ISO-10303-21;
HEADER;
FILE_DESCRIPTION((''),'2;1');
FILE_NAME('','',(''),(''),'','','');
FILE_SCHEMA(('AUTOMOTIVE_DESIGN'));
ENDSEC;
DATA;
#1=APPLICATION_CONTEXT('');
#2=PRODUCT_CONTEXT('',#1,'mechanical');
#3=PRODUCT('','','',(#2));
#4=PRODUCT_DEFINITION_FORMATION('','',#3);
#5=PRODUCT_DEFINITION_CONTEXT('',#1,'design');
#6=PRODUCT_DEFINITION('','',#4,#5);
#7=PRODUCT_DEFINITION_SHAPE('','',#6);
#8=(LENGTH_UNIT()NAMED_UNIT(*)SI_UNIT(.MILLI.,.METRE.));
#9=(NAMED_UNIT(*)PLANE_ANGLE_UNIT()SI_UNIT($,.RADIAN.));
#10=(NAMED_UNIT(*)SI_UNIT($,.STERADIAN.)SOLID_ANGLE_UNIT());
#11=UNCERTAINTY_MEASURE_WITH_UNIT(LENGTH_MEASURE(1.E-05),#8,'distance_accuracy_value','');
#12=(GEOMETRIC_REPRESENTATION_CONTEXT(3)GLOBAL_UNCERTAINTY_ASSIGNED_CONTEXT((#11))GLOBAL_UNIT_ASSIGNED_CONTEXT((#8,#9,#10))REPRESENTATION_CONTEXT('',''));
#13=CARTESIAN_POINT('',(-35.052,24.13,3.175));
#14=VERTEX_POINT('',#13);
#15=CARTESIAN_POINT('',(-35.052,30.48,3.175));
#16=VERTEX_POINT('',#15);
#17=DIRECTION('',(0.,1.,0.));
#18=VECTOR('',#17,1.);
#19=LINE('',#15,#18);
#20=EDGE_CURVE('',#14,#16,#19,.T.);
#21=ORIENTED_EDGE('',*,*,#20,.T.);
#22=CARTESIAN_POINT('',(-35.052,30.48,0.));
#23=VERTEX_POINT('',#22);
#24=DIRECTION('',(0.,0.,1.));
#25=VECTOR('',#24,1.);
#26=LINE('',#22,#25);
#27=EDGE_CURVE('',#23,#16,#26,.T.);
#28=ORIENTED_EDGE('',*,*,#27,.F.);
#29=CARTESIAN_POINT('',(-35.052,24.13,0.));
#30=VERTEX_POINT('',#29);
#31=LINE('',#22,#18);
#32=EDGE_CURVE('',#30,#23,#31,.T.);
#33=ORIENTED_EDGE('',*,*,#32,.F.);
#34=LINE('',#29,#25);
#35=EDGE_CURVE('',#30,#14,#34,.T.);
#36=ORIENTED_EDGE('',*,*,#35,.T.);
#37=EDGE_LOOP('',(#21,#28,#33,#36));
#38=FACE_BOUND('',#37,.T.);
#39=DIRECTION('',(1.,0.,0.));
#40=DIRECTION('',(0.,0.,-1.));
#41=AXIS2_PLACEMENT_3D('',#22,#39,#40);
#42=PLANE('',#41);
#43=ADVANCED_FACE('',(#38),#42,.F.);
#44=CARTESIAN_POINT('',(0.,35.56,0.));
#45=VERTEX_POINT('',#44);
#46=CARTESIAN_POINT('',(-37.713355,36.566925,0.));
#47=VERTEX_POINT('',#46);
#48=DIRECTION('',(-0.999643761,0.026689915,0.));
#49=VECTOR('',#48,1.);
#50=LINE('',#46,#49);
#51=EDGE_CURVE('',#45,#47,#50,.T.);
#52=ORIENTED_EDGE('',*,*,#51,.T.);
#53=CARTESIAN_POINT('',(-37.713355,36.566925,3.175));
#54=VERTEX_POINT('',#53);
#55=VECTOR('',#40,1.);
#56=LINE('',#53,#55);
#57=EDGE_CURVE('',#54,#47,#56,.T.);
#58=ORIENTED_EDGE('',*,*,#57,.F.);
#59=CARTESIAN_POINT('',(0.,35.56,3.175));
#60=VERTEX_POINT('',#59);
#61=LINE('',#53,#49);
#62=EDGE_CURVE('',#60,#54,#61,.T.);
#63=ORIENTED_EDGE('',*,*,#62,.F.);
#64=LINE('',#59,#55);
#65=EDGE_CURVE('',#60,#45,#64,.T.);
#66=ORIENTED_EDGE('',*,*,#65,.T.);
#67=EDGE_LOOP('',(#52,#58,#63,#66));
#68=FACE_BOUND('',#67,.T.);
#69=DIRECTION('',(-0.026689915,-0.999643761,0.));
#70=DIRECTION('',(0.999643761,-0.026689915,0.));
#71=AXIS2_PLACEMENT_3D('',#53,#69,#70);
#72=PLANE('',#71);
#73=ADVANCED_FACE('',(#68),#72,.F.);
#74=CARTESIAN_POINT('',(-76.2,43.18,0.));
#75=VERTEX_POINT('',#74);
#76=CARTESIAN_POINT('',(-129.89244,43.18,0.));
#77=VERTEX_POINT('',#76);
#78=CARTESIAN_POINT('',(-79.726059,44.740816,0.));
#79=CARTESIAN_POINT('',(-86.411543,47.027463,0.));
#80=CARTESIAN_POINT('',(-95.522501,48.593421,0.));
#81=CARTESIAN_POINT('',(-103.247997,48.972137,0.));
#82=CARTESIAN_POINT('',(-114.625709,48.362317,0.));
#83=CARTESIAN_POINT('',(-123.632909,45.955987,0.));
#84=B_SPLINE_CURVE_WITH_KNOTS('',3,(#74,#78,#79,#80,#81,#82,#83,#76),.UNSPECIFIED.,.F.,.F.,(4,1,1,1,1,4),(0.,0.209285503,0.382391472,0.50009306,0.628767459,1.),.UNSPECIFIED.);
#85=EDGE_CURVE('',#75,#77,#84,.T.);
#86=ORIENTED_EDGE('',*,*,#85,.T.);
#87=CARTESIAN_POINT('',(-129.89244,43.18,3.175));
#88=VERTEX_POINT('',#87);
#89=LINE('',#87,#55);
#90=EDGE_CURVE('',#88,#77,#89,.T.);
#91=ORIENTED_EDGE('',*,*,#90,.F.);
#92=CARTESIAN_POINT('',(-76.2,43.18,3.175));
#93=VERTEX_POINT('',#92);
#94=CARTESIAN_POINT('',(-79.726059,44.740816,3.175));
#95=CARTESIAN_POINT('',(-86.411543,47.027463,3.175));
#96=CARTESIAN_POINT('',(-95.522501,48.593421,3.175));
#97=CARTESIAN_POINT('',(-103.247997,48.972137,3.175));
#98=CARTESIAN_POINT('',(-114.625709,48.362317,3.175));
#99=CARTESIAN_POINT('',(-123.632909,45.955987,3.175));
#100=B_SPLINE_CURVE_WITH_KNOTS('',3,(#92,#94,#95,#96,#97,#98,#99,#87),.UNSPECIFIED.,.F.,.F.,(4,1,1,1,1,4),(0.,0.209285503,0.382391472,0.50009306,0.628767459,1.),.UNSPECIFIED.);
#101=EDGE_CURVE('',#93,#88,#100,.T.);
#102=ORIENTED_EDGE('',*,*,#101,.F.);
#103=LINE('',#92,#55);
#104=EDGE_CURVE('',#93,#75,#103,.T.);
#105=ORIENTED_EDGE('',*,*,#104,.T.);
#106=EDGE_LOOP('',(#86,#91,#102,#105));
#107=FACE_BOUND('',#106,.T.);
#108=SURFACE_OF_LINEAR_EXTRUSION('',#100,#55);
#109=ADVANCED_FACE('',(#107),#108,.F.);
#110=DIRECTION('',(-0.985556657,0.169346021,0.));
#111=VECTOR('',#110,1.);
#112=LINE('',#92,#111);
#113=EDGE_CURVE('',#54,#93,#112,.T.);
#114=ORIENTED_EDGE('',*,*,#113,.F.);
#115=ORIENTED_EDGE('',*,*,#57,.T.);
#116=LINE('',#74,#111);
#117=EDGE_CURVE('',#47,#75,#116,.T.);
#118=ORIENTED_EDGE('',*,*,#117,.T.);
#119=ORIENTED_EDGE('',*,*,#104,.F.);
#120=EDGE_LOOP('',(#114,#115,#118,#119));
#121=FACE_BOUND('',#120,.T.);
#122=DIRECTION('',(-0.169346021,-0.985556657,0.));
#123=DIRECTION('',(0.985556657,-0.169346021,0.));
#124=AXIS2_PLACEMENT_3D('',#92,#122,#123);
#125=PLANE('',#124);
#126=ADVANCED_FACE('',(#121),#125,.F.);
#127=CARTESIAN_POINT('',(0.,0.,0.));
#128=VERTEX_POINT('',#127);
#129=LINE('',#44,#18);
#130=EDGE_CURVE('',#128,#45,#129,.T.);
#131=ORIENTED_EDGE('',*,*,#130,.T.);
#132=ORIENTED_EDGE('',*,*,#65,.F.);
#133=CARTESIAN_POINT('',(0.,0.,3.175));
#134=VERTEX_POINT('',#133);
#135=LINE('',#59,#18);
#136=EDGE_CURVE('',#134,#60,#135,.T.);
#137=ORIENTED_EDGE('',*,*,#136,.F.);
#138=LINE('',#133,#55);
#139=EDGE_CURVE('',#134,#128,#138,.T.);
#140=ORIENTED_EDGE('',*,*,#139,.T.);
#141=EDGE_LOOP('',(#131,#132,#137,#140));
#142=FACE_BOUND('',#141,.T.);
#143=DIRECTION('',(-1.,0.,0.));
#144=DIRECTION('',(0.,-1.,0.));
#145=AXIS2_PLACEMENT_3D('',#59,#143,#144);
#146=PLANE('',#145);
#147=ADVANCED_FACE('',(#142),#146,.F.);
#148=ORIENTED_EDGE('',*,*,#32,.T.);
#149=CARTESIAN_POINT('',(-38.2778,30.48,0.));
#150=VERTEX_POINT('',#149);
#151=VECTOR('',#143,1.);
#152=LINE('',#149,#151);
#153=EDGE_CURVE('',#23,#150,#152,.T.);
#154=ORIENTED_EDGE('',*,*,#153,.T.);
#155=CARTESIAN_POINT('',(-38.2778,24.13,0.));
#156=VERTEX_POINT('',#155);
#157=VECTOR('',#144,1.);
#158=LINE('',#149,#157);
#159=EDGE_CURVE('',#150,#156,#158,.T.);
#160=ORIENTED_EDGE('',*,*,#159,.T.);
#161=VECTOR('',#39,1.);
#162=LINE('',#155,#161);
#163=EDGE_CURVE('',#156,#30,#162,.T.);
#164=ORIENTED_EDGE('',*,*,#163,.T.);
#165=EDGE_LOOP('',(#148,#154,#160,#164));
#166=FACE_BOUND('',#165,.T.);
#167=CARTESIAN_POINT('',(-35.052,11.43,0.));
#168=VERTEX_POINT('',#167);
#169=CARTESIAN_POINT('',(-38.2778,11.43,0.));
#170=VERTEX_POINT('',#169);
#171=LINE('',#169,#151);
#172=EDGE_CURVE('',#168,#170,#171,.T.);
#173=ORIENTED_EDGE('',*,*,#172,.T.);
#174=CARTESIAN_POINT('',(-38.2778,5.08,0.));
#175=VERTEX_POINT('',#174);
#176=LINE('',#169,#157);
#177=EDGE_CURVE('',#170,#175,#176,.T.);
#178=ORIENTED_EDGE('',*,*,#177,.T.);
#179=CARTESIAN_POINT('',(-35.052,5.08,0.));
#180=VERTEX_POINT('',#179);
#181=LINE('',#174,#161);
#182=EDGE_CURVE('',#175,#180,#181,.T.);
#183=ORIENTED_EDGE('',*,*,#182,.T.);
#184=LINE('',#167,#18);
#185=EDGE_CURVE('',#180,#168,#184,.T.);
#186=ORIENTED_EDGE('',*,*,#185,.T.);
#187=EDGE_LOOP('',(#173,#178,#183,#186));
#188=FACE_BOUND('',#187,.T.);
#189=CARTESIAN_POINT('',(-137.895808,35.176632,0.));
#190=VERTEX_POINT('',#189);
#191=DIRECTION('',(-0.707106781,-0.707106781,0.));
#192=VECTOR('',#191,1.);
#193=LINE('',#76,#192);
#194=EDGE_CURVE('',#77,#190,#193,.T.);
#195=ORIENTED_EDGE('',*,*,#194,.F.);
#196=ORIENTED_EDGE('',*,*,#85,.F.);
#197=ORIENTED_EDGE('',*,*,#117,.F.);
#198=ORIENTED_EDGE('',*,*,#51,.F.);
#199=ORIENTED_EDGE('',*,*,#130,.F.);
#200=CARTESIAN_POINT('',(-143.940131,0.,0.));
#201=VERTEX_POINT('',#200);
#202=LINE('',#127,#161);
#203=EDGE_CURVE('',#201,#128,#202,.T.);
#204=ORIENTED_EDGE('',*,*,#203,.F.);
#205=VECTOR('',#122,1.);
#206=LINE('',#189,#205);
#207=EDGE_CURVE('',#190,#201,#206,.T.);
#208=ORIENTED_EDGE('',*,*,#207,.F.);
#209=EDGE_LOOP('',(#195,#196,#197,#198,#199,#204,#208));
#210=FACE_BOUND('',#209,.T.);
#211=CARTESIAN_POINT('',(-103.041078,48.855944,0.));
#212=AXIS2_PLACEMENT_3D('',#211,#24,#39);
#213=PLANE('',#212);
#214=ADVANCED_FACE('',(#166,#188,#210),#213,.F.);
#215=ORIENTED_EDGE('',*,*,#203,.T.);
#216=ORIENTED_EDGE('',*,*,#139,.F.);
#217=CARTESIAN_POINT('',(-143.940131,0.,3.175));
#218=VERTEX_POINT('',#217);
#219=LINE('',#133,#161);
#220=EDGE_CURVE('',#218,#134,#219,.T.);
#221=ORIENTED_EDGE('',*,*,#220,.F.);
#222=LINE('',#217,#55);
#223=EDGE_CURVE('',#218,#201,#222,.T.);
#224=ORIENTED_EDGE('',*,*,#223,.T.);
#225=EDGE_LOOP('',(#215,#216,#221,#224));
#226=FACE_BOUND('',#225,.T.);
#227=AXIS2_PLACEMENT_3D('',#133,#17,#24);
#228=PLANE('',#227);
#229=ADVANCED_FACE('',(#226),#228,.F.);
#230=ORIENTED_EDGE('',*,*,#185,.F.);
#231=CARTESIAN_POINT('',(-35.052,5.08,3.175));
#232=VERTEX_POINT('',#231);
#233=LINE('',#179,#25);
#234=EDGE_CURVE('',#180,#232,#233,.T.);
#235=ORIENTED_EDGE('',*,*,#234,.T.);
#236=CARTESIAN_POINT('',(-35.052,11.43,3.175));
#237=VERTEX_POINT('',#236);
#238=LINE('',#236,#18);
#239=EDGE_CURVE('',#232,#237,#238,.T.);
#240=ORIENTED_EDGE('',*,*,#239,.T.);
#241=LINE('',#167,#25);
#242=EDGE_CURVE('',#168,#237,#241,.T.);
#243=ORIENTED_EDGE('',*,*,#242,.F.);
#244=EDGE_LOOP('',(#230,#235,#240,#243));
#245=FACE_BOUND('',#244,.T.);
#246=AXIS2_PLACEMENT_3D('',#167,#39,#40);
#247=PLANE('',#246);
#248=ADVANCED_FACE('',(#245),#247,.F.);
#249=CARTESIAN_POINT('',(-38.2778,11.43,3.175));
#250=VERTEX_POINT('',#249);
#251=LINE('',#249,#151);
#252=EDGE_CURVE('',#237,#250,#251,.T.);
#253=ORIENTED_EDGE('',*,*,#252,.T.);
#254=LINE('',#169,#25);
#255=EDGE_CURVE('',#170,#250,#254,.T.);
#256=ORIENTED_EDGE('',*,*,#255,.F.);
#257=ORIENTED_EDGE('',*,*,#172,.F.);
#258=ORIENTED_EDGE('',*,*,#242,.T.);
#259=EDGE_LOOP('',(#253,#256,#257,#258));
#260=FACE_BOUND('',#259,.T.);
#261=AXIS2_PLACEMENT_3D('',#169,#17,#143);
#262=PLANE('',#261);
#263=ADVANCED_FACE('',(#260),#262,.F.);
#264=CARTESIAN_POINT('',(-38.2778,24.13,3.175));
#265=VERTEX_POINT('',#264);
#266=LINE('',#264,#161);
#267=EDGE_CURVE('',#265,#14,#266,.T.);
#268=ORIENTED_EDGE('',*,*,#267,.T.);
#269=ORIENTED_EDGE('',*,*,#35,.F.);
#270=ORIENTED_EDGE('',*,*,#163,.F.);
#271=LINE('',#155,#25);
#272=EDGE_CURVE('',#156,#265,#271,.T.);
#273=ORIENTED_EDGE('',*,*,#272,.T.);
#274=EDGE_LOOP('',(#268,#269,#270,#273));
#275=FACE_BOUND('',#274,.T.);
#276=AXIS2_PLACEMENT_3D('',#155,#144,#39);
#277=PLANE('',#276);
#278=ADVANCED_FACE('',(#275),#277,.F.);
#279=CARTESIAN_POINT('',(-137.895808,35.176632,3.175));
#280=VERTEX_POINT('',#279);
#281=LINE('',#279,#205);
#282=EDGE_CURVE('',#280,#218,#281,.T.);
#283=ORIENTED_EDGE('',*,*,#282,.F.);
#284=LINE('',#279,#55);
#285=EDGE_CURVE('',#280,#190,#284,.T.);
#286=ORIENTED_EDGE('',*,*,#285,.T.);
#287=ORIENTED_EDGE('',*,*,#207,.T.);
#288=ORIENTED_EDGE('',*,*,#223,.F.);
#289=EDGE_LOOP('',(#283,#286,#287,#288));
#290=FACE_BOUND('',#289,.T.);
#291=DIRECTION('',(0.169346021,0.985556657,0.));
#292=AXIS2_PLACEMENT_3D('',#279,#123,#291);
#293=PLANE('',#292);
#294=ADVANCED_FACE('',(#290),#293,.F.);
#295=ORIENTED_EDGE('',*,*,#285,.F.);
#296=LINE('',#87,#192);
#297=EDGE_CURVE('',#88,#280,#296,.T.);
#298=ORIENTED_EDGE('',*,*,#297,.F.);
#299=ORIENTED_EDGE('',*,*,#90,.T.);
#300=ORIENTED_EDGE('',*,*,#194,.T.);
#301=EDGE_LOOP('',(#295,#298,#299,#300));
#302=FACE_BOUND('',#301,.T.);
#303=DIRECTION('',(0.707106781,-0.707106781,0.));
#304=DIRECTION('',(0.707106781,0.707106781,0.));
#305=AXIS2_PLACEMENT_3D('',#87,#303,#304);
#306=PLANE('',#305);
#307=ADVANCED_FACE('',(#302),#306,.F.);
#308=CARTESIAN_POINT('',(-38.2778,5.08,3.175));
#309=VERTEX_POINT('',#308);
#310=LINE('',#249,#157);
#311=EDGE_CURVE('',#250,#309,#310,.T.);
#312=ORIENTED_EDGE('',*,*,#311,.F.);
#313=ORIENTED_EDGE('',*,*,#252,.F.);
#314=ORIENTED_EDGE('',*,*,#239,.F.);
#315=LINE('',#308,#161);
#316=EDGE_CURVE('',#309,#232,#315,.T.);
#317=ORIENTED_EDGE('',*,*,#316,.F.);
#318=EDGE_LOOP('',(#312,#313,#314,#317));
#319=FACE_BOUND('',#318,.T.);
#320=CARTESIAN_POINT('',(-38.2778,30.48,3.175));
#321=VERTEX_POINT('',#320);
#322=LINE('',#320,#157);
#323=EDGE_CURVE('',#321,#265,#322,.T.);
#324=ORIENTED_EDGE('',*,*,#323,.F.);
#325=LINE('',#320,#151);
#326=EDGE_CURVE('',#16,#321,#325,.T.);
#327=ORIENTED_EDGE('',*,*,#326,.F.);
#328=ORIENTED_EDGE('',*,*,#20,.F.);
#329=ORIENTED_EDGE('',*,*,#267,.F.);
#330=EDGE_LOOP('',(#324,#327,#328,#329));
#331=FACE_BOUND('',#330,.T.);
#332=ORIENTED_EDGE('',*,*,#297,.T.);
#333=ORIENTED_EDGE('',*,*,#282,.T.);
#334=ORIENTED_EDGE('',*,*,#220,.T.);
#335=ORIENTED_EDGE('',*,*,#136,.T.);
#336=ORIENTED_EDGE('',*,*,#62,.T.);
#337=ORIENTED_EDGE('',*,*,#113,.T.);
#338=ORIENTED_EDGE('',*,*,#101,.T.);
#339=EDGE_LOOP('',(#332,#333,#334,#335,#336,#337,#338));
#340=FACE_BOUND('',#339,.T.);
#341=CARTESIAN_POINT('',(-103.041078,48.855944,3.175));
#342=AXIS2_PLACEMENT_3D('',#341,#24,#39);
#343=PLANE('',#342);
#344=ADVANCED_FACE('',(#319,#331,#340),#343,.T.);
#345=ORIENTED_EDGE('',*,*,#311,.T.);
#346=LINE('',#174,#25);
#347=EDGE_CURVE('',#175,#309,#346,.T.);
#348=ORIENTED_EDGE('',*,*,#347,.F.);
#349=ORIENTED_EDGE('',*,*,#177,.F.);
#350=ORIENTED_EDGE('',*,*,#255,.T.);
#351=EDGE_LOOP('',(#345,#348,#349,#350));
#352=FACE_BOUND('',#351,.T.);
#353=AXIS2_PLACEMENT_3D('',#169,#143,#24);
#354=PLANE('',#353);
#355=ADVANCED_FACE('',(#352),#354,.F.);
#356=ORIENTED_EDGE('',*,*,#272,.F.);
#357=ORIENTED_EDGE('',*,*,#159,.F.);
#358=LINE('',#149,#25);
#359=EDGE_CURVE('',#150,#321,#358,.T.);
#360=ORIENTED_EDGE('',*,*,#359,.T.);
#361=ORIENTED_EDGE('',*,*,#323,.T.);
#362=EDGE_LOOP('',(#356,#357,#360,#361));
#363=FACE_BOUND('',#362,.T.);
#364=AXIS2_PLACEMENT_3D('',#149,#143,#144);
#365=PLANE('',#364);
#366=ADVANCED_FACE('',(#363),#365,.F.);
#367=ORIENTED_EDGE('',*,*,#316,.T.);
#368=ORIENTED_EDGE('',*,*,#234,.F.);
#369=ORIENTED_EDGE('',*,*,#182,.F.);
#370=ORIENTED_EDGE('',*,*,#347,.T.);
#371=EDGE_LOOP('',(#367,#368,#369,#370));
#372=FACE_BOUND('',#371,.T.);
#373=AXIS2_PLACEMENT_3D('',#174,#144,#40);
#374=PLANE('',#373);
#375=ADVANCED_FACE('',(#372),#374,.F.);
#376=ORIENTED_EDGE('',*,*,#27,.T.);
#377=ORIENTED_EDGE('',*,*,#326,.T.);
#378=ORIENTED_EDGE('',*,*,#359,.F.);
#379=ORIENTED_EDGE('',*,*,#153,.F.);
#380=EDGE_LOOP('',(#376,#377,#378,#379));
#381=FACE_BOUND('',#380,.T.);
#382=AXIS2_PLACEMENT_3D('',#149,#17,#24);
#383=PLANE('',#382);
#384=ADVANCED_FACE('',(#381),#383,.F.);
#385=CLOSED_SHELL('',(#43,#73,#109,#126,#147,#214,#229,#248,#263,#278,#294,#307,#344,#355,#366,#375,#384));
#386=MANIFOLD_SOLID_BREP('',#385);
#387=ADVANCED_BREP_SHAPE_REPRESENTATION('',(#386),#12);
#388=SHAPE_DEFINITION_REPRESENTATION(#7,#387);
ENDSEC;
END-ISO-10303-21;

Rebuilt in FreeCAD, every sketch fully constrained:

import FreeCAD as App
import Part
import Sketcher
from FreeCAD import Vector
Q = App.Units.Quantity


def add_polygon(sketch, points):
    """Adds a closed chain of lines whose ends are joined by coincident constraints."""
    first, n = sketch.GeometryCount, len(points)
    for a, b in zip(points, points[1:] + points[:1]):
        sketch.addGeometry(Part.LineSegment(App.Vector(*a, 0), App.Vector(*b, 0)), False)
    for i in range(n):
        sketch.addConstraint(Sketcher.Constraint("Coincident", first + i, 2, first + (i + 1) % n, 1))

doc = App.newDocument("Part")
body = doc.addObject("PartDesign::Body", "Body")

sketch1 = doc.addObject("Sketcher::SketchObject", "Sketch")
body.addObject(sketch1)
sketch1.AttachmentSupport = (doc.XY_Plane, [""])
sketch1.MapMode = "FlatFace"
sketch1.addGeometry([
    Part.LineSegment(Vector(-37.713355, 36.566925, 0), Vector(-76.2, 43.18, 0)),
    Part.BSplineCurve([Vector(-129.89244, 43.18, 0), Vector(-123.632909, 45.955987, 0), Vector(-114.625709, 48.362317, 0), Vector(-103.247997, 48.972137, 0), Vector(-95.522501, 48.593421, 0), Vector(-86.411543, 47.027463, 0), Vector(-79.726059, 44.740816, 0), Vector(-76.2, 43.18, 0)], [4, 1, 1, 1, 1, 4], [0, 0.371232541, 0.49990694, 0.617608528, 0.790714497, 1], False, 3, [1, 1, 1, 1, 1, 1, 1, 1], False),
    Part.LineSegment(Vector(-129.89244, 43.18, 0), Vector(-137.895808, 35.176632, 0)),
    Part.LineSegment(Vector(-137.895808, 35.176632, 0), Vector(-143.940131, 0, 0)),
    Part.LineSegment(Vector(-143.940131, 0, 0), Vector(0, 0, 0)),
    Part.LineSegment(Vector(0, 0, 0), Vector(0, 35.56, 0)),
    Part.LineSegment(Vector(0, 35.56, 0), Vector(-37.713355, 36.566925, 0)),
], False)
sketch1.addConstraint([
    Sketcher.Constraint("Block", 1),
    Sketcher.Constraint("Coincident", 0, 2, 1, 2),
    Sketcher.Constraint("Coincident", 1, 1, 2, 1),
    Sketcher.Constraint("Coincident", 2, 2, 3, 1),
    Sketcher.Constraint("Coincident", 3, 2, 4, 1),
    Sketcher.Constraint("Coincident", 4, 2, 5, 1),
    Sketcher.Constraint("Coincident", 5, 2, 6, 1),
    Sketcher.Constraint("Coincident", 6, 2, 0, 1),
    Sketcher.Constraint("Horizontal", 4),
    Sketcher.Constraint("Vertical", 5),
    Sketcher.Constraint("Coincident", 4, 2, -1, 1),
    Sketcher.Constraint("Perpendicular", 0, 3),
    Sketcher.Constraint("DistanceY", 5, 1, 5, 2, Q("1.4 in")),
    Sketcher.Constraint("Angle", 2, Q("-135 deg")),
    Sketcher.Constraint("DistanceX", 4, 1, 4, 2, Q("143.940131 mm")),
    Sketcher.Constraint("Distance", 2, Q("11.318472 mm")),
    Sketcher.Constraint("Distance", 0, Q("39.050667 mm")),
])
pad1 = doc.addObject("PartDesign::Pad", "Pad")
body.addObject(pad1)
pad1.Profile = sketch1
pad1.Length = Q("0.125 in")

sketch2 = doc.addObject("Sketcher::SketchObject", "Sketch001")
body.addObject(sketch2)
sketch2.AttachmentSupport = (doc.XY_Plane, [""])
sketch2.MapMode = "FlatFace"
sketch2.AttachmentOffset = App.Placement(Vector(0, 0, 0.125 * 25.4), App.Rotation())
add_polygon(sketch2, [(-38.3, 30.5), (-38.3, 24.1), (-35.1, 24.1), (-35.1, 30.5)])
add_polygon(sketch2, [(-38.3, 11.4), (-38.3, 5.1), (-35.1, 5.1), (-35.1, 11.4)])
sketch2.addConstraint([
    Sketcher.Constraint("Vertical", 0),
    Sketcher.Constraint("Horizontal", 1),
    Sketcher.Constraint("Vertical", 2),
    Sketcher.Constraint("Horizontal", 3),
    Sketcher.Constraint("Vertical", 4),
    Sketcher.Constraint("Horizontal", 5),
    Sketcher.Constraint("Vertical", 6),
    Sketcher.Constraint("Horizontal", 7),
    Sketcher.Constraint("Vertical", 3, 2, 4, 2),
    Sketcher.Constraint("Vertical", 2, 2, 5, 2),
    Sketcher.Constraint("Equal", 2, 4),
    Sketcher.Constraint("DistanceY", 4, 2, 3, 2, Q("1 in")),
    Sketcher.Constraint("DistanceY", 0, 2, 0, 1, Q("0.25 in")),
    Sketcher.Constraint("DistanceY", -1, 1, 2, 2, Q("1.2 in")),
    Sketcher.Constraint("DistanceX", 1, 1, 1, 2, Q("0.127 in")),
    Sketcher.Constraint("DistanceX", 1, 2, -1, 1, Q("1.38 in")),
])
pocket1 = doc.addObject("PartDesign::Pocket", "Pocket")
body.addObject(pocket1)
pocket1.Profile = sketch2
pocket1.Type = "ThroughAll"

doc.recompute()
